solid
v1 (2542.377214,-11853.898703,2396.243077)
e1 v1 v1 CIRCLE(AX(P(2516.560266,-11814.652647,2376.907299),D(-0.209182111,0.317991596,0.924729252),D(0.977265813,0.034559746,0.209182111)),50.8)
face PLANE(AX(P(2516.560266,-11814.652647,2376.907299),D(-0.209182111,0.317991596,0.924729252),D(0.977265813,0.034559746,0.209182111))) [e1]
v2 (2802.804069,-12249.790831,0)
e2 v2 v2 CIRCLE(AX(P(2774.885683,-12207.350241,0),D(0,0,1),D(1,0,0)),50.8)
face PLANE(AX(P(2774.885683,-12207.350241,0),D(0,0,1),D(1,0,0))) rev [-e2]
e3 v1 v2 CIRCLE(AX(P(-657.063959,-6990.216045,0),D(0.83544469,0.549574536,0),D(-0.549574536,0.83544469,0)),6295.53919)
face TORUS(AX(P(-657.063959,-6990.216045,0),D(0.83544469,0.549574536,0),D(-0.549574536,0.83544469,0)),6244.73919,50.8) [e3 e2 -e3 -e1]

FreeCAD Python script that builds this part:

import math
import FreeCAD as App
import Part
import Sketcher
from FreeCAD import Vector
Q = App.Units.Quantity

doc = App.newDocument("Part")
body = doc.addObject("PartDesign::Body", "Body")

# Sketch on XY plane
sketch1 = body.newObject("Sketcher::SketchObject", "Sketch")
sketch1.AttachmentSupport = (doc.getObject("XY_Plane"), [""])
sketch1.MapMode = "FlatFace"
sketch1.addGeometry(Part.Circle(Vector(2775, -12207, 0), Vector(0, 0, 1), 51), False)
sketch1.addConstraint([
    Sketcher.Constraint("Diameter", 0, Q("4 in")),
    Sketcher.Constraint("DistanceY", 0, 3, -1, 1, 12207.350241),
    Sketcher.Constraint("DistanceX", -1, 1, 0, 3, 2774.885683),
])

# Sketch on an angled plane
sketch2 = body.newObject("Sketcher::SketchObject", "Sketch001")
sketch2.Placement = App.Placement(Vector(-3668.091202, -2412.953897, 0), App.Rotation(Vector(-0.549574536, 0.83544469, 0), Vector(0, 0, 1.000000001), Vector(0.83544469, 0.549574536, 0), "ZXY"))
sketch2.addGeometry(Part.ArcOfCircle(Part.Circle(Vector(-5479, 0, 0), Vector(0, 0, 1), 6245), math.radians(158), math.radians(180)), False)
sketch2.addConstraint([
    Sketcher.Constraint("PointOnObject", 0, 3, -1),
    Sketcher.Constraint("PointOnObject", 0, 2, -1),
    Sketcher.Constraint("Radius", 0, 6244.73919),
    Sketcher.Constraint("DistanceY", -1, 1, 0, 1, 2376.9073),
    Sketcher.Constraint("DistanceX", 0, 3, -1, 1, 5478.833258),
])
doc.recompute()

additivepipe = body.newObject("PartDesign::AdditivePipe", "AdditivePipe")
additivepipe.Profile = sketch1
additivepipe.Spine = (sketch2, ["Edge1"])

doc.recompute()
